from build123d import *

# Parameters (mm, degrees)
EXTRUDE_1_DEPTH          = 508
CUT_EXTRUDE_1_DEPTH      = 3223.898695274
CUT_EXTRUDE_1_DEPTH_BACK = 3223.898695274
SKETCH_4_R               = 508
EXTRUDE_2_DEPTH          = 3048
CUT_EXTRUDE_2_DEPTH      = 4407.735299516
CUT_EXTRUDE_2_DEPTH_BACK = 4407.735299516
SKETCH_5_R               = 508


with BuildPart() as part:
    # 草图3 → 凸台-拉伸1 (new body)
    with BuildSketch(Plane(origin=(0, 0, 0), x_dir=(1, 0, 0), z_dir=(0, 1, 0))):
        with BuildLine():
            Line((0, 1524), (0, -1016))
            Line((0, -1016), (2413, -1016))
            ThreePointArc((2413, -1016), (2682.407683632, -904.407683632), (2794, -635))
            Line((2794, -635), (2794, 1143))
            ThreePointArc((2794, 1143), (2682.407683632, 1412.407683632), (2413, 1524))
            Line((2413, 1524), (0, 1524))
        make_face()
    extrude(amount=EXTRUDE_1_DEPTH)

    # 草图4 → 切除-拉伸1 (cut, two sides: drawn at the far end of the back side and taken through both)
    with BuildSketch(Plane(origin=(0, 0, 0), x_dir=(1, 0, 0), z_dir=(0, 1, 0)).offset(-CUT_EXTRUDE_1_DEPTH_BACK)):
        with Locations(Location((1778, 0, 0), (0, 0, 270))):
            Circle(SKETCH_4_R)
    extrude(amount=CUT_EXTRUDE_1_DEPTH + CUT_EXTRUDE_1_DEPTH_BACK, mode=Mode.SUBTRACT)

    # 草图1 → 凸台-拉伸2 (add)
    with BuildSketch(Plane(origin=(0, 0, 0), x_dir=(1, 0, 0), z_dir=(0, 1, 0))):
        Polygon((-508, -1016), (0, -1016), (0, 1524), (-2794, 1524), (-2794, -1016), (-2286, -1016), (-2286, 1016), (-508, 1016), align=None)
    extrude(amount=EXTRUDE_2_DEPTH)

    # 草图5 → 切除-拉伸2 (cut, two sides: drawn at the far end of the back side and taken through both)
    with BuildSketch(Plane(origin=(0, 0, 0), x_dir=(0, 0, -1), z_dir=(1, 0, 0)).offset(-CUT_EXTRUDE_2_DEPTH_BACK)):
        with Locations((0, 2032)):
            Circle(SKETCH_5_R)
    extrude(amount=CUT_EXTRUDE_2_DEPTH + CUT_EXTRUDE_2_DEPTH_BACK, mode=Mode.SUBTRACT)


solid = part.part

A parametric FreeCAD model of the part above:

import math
import FreeCAD as App
import Part
import Sketcher
from FreeCAD import Vector
Q = App.Units.Quantity


def add_polygon(sketch, points):
    """Adds a closed chain of lines whose ends are joined by coincident constraints."""
    first, n = sketch.GeometryCount, len(points)
    for a, b in zip(points, points[1:] + points[:1]):
        sketch.addGeometry(Part.LineSegment(App.Vector(*a, 0), App.Vector(*b, 0)), False)
    for i in range(n):
        sketch.addConstraint(Sketcher.Constraint("Coincident", first + i, 2, first + (i + 1) % n, 1))

doc = App.newDocument("Part")
body = doc.addObject("PartDesign::Body", "Body")

sketch1 = body.newObject("Sketcher::SketchObject", "Sketch")
sketch1.AttachmentSupport = (doc.getObject("XZ_Plane"), [""])
sketch1.MapMode = "FlatFace"
sketch1.addGeometry([
    Part.LineSegment(Vector(0, -1524, 0), Vector(0, 1016, 0)),
    Part.LineSegment(Vector(0, 1016, 0), Vector(2413, 1016, 0)),
    Part.ArcOfCircle(Part.Circle(Vector(2413, 635, 0), Vector(0, 0, 1), 381), math.radians(0), math.radians(90)),
    Part.LineSegment(Vector(2794, 635, 0), Vector(2794, -1143, 0)),
    Part.ArcOfCircle(Part.Circle(Vector(2413, -1143, 0), Vector(0, 0, 1), 381), math.radians(-90), math.radians(0)),
    Part.LineSegment(Vector(2413, -1524, 0), Vector(0, -1524, 0)),
], False)
sketch1.addConstraint([
    Sketcher.Constraint("Coincident", 0, 2, 1, 1),
    Sketcher.Constraint("Tangent", 1, 2, 2, 2),
    Sketcher.Constraint("Tangent", 2, 1, 3, 1),
    Sketcher.Constraint("Tangent", 3, 2, 4, 2),
    Sketcher.Constraint("Tangent", 4, 1, 5, 1),
    Sketcher.Constraint("Coincident", 5, 2, 0, 1),
    Sketcher.Constraint("Vertical", 0),
    Sketcher.Constraint("Horizontal", 1),
    Sketcher.Constraint("Vertical", 3),
    Sketcher.Constraint("Horizontal", 5),
    Sketcher.Constraint("Equal", 2, 4),
    Sketcher.Constraint("PointOnObject", 0, 2, -2),
    Sketcher.Constraint("Radius", 2, Q("15 in")),
    Sketcher.Constraint("DistanceX", 1, 1, 1, 2, Q("95 in")),
    Sketcher.Constraint("DistanceY", 0, 1, 0, 2, Q("100 in")),
    Sketcher.Constraint("DistanceY", -1, 1, 2, 3, Q("25 in")),
])
pad1 = body.newObject("PartDesign::Pad", "Pad")
pad1.Profile = sketch1
pad1.Length = Q("20 in")
pad1.Reversed = True

sketch2 = body.newObject("Sketcher::SketchObject", "Sketch001")
sketch2.AttachmentSupport = (doc.getObject("XZ_Plane"), [""])
sketch2.MapMode = "FlatFace"
sketch2.addGeometry(Part.Circle(Vector(1778, 0, 0), Vector(0, 0, 1), 508), False)
sketch2.addConstraint([
    Sketcher.Constraint("PointOnObject", 0, 3, -1),
    Sketcher.Constraint("Diameter", 0, Q("40 in")),
    Sketcher.Constraint("DistanceX", -1, 1, 0, 3, Q("70 in")),
])
pocket1 = body.newObject("PartDesign::Pocket", "Pocket")
pocket1.Profile = sketch2
pocket1.Type = "ThroughAll"
pocket1.Midplane = True

sketch3 = body.newObject("Sketcher::SketchObject", "Sketch002")
sketch3.AttachmentSupport = (doc.getObject("XZ_Plane"), [""])
sketch3.MapMode = "FlatFace"
add_polygon(sketch3, [(-508, 1016), (0, 1016), (0, -1524), (-2794, -1524), (-2794, 1016), (-2286, 1016), (-2286, -1016), (-508, -1016)])
sketch3.addConstraint([
    Sketcher.Constraint("Horizontal", 0),
    Sketcher.Constraint("Vertical", 1),
    Sketcher.Constraint("Horizontal", 2),
    Sketcher.Constraint("Vertical", 3),
    Sketcher.Constraint("Horizontal", 4),
    Sketcher.Constraint("Vertical", 5),
    Sketcher.Constraint("Horizontal", 6),
    Sketcher.Constraint("Vertical", 7),
    Sketcher.Constraint("PointOnObject", 0, 2, -2),
    Sketcher.Constraint("Horizontal", 0, 2, 3, 2),
    Sketcher.Constraint("Equal", 0, 4),
    Sketcher.Constraint("DistanceX", 0, 1, 0, 2, Q("20 in")),
    Sketcher.Constraint("DistanceX", 2, 2, 2, 1, Q("110 in")),
    Sketcher.Constraint("DistanceY", 1, 2, 1, 1, Q("100 in")),
    Sketcher.Constraint("DistanceY", 5, 2, 5, 1, Q("80 in")),
    Sketcher.Constraint("DistanceY", -1, 1, 0, 2, Q("40 in")),
])
pad2 = body.newObject("PartDesign::Pad", "Pad001")
pad2.Profile = sketch3
pad2.Length = Q("120 in")
pad2.Reversed = True

sketch4 = body.newObject("Sketcher::SketchObject", "Sketch003")
sketch4.AttachmentSupport = (doc.getObject("YZ_Plane"), [""])
sketch4.MapMode = "FlatFace"
sketch4.addGeometry(Part.Circle(Vector(2032, 0, 0), Vector(0, 0, 1), 508), False)
sketch4.addConstraint([
    Sketcher.Constraint("PointOnObject", 0, 3, -1),
    Sketcher.Constraint("Diameter", 0, Q("40 in")),
    Sketcher.Constraint("DistanceX", -1, 1, 0, 3, Q("80 in")),
])
pocket2 = body.newObject("PartDesign::Pocket", "Pocket001")
pocket2.Profile = sketch4
pocket2.Type = "ThroughAll"
pocket2.Midplane = True

doc.recompute()
